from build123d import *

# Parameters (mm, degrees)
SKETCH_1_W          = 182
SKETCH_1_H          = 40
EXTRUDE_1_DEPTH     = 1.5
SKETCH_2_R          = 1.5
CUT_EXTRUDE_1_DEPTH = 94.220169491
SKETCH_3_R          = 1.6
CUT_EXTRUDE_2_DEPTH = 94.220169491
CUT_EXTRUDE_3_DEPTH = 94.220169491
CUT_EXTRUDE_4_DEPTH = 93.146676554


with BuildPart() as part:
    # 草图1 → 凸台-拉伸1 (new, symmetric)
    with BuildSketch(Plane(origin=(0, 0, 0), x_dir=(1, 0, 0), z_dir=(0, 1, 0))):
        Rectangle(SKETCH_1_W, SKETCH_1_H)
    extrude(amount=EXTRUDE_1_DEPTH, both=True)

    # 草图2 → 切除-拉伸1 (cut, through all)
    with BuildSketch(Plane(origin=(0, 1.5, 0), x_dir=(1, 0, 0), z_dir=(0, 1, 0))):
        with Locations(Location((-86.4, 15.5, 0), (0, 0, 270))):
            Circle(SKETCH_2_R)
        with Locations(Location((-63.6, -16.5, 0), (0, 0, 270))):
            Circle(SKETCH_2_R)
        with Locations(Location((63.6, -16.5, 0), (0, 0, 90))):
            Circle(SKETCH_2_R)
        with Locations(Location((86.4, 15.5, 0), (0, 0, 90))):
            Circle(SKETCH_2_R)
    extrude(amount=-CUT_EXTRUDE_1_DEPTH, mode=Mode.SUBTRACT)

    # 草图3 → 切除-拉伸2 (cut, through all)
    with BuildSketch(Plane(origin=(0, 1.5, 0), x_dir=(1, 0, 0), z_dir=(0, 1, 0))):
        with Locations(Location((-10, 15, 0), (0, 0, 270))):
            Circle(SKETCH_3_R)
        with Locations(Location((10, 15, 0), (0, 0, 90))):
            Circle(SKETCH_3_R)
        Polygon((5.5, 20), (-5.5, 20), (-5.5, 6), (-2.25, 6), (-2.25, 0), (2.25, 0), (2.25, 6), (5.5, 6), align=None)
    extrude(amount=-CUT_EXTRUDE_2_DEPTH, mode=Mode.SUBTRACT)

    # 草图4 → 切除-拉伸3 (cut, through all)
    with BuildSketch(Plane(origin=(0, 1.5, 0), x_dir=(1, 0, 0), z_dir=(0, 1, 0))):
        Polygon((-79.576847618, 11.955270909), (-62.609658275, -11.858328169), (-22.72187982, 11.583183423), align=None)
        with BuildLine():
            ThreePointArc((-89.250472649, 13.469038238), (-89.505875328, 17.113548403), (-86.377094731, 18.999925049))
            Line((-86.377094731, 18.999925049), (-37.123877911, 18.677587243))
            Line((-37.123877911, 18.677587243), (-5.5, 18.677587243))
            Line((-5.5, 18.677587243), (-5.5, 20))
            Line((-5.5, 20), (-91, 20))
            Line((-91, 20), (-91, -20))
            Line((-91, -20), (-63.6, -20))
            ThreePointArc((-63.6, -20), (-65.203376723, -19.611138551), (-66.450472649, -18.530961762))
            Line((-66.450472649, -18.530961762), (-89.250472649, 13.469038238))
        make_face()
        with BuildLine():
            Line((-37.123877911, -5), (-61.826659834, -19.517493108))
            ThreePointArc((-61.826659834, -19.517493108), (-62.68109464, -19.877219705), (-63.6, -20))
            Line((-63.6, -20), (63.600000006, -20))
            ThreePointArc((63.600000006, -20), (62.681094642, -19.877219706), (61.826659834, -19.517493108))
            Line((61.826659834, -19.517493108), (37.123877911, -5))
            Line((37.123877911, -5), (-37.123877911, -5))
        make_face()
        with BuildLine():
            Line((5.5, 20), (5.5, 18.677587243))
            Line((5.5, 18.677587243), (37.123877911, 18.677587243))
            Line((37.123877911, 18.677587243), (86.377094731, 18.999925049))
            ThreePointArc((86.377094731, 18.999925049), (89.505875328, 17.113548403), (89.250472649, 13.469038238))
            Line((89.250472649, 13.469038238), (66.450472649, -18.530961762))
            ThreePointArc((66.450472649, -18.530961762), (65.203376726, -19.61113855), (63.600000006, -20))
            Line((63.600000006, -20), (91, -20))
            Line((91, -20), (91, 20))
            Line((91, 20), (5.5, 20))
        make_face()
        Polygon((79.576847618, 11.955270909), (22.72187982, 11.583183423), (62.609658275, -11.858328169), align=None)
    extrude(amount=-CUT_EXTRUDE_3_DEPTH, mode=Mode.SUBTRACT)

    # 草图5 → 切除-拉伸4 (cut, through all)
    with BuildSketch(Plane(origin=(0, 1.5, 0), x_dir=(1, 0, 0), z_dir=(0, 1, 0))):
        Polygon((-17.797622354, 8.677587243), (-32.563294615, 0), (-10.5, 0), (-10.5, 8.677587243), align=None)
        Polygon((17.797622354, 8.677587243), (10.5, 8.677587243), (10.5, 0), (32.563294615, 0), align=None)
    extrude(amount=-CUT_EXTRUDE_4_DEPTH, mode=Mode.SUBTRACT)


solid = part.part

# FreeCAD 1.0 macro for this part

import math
import FreeCAD as App
import Part
import Sketcher

doc = App.newDocument("Part")
body = doc.addObject("PartDesign::Body", "Body")

sketch1 = doc.addObject("Sketcher::SketchObject", "Sketch")
body.addObject(sketch1)
sketch1.AttachmentSupport = (doc.XZ_Plane, [""])
sketch1.MapMode = "FlatFace"
sketch1.addGeometry([
    Part.LineSegment(App.Vector(-91, -20, 0), App.Vector(-91, 20, 0)),
    Part.LineSegment(App.Vector(-91, 20, 0), App.Vector(91, 20, 0)),
    Part.LineSegment(App.Vector(91, 20, 0), App.Vector(91, -20, 0)),
    Part.LineSegment(App.Vector(91, -20, 0), App.Vector(-91, -20, 0)),
], False)
sketch1.addConstraint([
    Sketcher.Constraint("Coincident", 0, 2, 1, 1),
    Sketcher.Constraint("Coincident", 1, 2, 2, 1),
    Sketcher.Constraint("Coincident", 2, 2, 3, 1),
    Sketcher.Constraint("Coincident", 3, 2, 0, 1),
    Sketcher.Constraint("Vertical", 0),
    Sketcher.Constraint("Horizontal", 1),
    Sketcher.Constraint("Vertical", 2),
    Sketcher.Constraint("Horizontal", 3),
    Sketcher.Constraint("Symmetric", 0, 2, 2, 2, -1, 1),
    Sketcher.Constraint("DistanceX", 1, 1, 1, 2, 182.0),
    Sketcher.Constraint("DistanceY", 0, 1, 0, 2, 40.0),
])
pad1 = doc.addObject("PartDesign::Pad", "Pad")
body.addObject(pad1)
pad1.Profile = sketch1
pad1.Length = 3
pad1.Midplane = True

sketch2 = doc.addObject("Sketcher::SketchObject", "Sketch001")
body.addObject(sketch2)
sketch2.AttachmentSupport = (doc.XZ_Plane, [""])
sketch2.MapMode = "FlatFace"
sketch2.AttachmentOffset = App.Placement(App.Vector(0, 0, -1.5), App.Rotation())
sketch2.addGeometry([
    Part.Circle(App.Vector(-86.4, -15.5, 0), App.Vector(0, 0, 1), 1.5),
    Part.Circle(App.Vector(-63.6, 16.5, 0), App.Vector(0, 0, 1), 1.5),
    Part.Circle(App.Vector(63.6, 16.5, 0), App.Vector(0, 0, 1), 1.5),
    Part.Circle(App.Vector(86.4, -15.5, 0), App.Vector(0, 0, 1), 1.5),
], False)
sketch2.addConstraint([
    Sketcher.Constraint("Equal", 0, 1),
    Sketcher.Constraint("Equal", 1, 2),
    Sketcher.Constraint("Equal", 2, 3),
    Sketcher.Constraint("Symmetric", 1, 3, 2, 3, -2),
    Sketcher.Constraint("Symmetric", 0, 3, 3, 3, -2),
    Sketcher.Constraint("Diameter", 0, 3.0),
    Sketcher.Constraint("DistanceY", 0, 3, 1, 3, 32.0),
    Sketcher.Constraint("DistanceX", 0, 3, 2, 3, 150.0),
    Sketcher.Constraint("DistanceX", 0, 3, -1, 1, 86.4),
    Sketcher.Constraint("DistanceY", 0, 3, -1, 1, 15.5),
])
pocket1 = doc.addObject("PartDesign::Pocket", "Pocket")
body.addObject(pocket1)
pocket1.Profile = sketch2
pocket1.Type = "ThroughAll"
pocket1.Reversed = True

sketch3 = doc.addObject("Sketcher::SketchObject", "Sketch002")
body.addObject(sketch3)
sketch3.AttachmentSupport = (doc.XZ_Plane, [""])
sketch3.MapMode = "FlatFace"
sketch3.AttachmentOffset = App.Placement(App.Vector(0, 0, -1.5), App.Rotation())
sketch3.addGeometry([
    Part.Circle(App.Vector(-10, -15, 0), App.Vector(0, 0, 1), 1.6),
    Part.Circle(App.Vector(10, -15, 0), App.Vector(0, 0, 1), 1.6),
    Part.LineSegment(App.Vector(5.5, -20, 0), App.Vector(-5.5, -20, 0)),
    Part.LineSegment(App.Vector(-5.5, -20, 0), App.Vector(-5.5, -6, 0)),
    Part.LineSegment(App.Vector(-5.5, -6, 0), App.Vector(-2.2, -6, 0)),
    Part.LineSegment(App.Vector(-2.2, -6, 0), App.Vector(-2.2, 0, 0)),
    Part.LineSegment(App.Vector(-2.2, 0, 0), App.Vector(2.2, 0, 0)),
    Part.LineSegment(App.Vector(2.2, 0, 0), App.Vector(2.2, -6, 0)),
    Part.LineSegment(App.Vector(2.2, -6, 0), App.Vector(5.5, -6, 0)),
    Part.LineSegment(App.Vector(5.5, -6, 0), App.Vector(5.5, -20, 0)),
], False)
sketch3.addConstraint([
    Sketcher.Constraint("Coincident", 2, 2, 3, 1),
    Sketcher.Constraint("Coincident", 3, 2, 4, 1),
    Sketcher.Constraint("Coincident", 4, 2, 5, 1),
    Sketcher.Constraint("Coincident", 5, 2, 6, 1),
    Sketcher.Constraint("Coincident", 6, 2, 7, 1),
    Sketcher.Constraint("Coincident", 7, 2, 8, 1),
    Sketcher.Constraint("Coincident", 8, 2, 9, 1),
    Sketcher.Constraint("Coincident", 9, 2, 2, 1),
    Sketcher.Constraint("Horizontal", 2),
    Sketcher.Constraint("Vertical", 3),
    Sketcher.Constraint("Horizontal", 4),
    Sketcher.Constraint("Vertical", 5),
    Sketcher.Constraint("Horizontal", 6),
    Sketcher.Constraint("Vertical", 7),
    Sketcher.Constraint("Horizontal", 8),
    Sketcher.Constraint("Vertical", 9),
    Sketcher.Constraint("Equal", 0, 1),
    Sketcher.Constraint("Symmetric", 5, 2, 6, 2, -1, 1),
    Sketcher.Constraint("Symmetric", 0, 3, 1, 3, -2),
    Sketcher.Constraint("Symmetric", 3, 2, 8, 2, -2),
    Sketcher.Constraint("Diameter", 0, 3.2),
    Sketcher.Constraint("DistanceX", 2, 2, 2, 1, 11.0),
    Sketcher.Constraint("DistanceY", 3, 1, 3, 2, 14.0),
    Sketcher.Constraint("DistanceY", 5, 1, 5, 2, 6.0),
    Sketcher.Constraint("DistanceX", 6, 1, 6, 2, 4.5),
    Sketcher.Constraint("DistanceX", 0, 3, -1, 1, 10.0),
    Sketcher.Constraint("DistanceY", 0, 3, -1, 1, 15.0),
])
pocket2 = doc.addObject("PartDesign::Pocket", "Pocket001")
body.addObject(pocket2)
pocket2.Profile = sketch3
pocket2.Type = "ThroughAll"
pocket2.Reversed = True

sketch4 = doc.addObject("Sketcher::SketchObject", "Sketch003")
body.addObject(sketch4)
sketch4.AttachmentSupport = (doc.XZ_Plane, [""])
sketch4.MapMode = "FlatFace"
sketch4.AttachmentOffset = App.Placement(App.Vector(0, 0, -1.5), App.Rotation())
sketch4.addGeometry([
    Part.LineSegment(App.Vector(-79.6, -12, 0), App.Vector(-62.6, 11.9, 0)),
    Part.LineSegment(App.Vector(-62.6, 11.9, 0), App.Vector(-22.7, -11.6, 0)),
    Part.LineSegment(App.Vector(-22.7, -11.6, 0), App.Vector(-79.6, -12, 0)),
    Part.ArcOfCircle(Part.Circle(App.Vector(-86.4, -15.5, 0), App.Vector(0, 0, 1), 3.5), math.radians(145), math.radians(270)),
    Part.LineSegment(App.Vector(-86.4, -19, 0), App.Vector(-37.1, -18.7, 0)),
    Part.LineSegment(App.Vector(-37.1, -18.7, 0), App.Vector(-5.5, -18.7, 0)),
    Part.LineSegment(App.Vector(-5.5, -18.7, 0), App.Vector(-5.5, -20, 0)),
    Part.LineSegment(App.Vector(-5.5, -20, 0), App.Vector(-91, -20, 0)),
    Part.LineSegment(App.Vector(-91, -20, 0), App.Vector(-91, 20, 0)),
    Part.LineSegment(App.Vector(-91, 20, 0), App.Vector(-63.6, 20, 0)),
    Part.ArcOfCircle(Part.Circle(App.Vector(-63.6, 16.5, 0), App.Vector(0, 0, 1), 3.5), math.radians(90), math.radians(145)),
    Part.LineSegment(App.Vector(-66.5, 18.5, 0), App.Vector(-89.3, -13.5, 0)),
    Part.LineSegment(App.Vector(-37.1, 5, 0), App.Vector(-61.8, 19.5, 0)),
    Part.ArcOfCircle(Part.Circle(App.Vector(-63.6, 16.5, 0), App.Vector(0, 0, 1), 3.5), math.radians(60), math.radians(90)),
    Part.LineSegment(App.Vector(-63.6, 20, 0), App.Vector(63.6, 20, 0)),
    Part.ArcOfCircle(Part.Circle(App.Vector(63.6, 16.5, 0), App.Vector(0, 0, 1), 3.5), math.radians(90), math.radians(120)),
    Part.LineSegment(App.Vector(61.8, 19.5, 0), App.Vector(37.1, 5, 0)),
    Part.LineSegment(App.Vector(37.1, 5, 0), App.Vector(-37.1, 5, 0)),
    Part.LineSegment(App.Vector(5.5, -20, 0), App.Vector(5.5, -18.7, 0)),
    Part.LineSegment(App.Vector(5.5, -18.7, 0), App.Vector(37.1, -18.7, 0)),
    Part.LineSegment(App.Vector(37.1, -18.7, 0), App.Vector(86.4, -19, 0)),
    Part.ArcOfCircle(Part.Circle(App.Vector(86.4, -15.5, 0), App.Vector(0, 0, 1), 3.5), math.radians(-90), math.radians(35)),
    Part.LineSegment(App.Vector(89.3, -13.5, 0), App.Vector(66.5, 18.5, 0)),
    Part.ArcOfCircle(Part.Circle(App.Vector(63.6, 16.5, 0), App.Vector(0, 0, 1), 3.5), math.radians(35), math.radians(90)),
    Part.LineSegment(App.Vector(63.6, 20, 0), App.Vector(91, 20, 0)),
    Part.LineSegment(App.Vector(91, 20, 0), App.Vector(91, -20, 0)),
    Part.LineSegment(App.Vector(91, -20, 0), App.Vector(5.5, -20, 0)),
    Part.LineSegment(App.Vector(79.6, -12, 0), App.Vector(22.7, -11.6, 0)),
    Part.LineSegment(App.Vector(22.7, -11.6, 0), App.Vector(62.6, 11.9, 0)),
    Part.LineSegment(App.Vector(62.6, 11.9, 0), App.Vector(79.6, -12, 0)),
], False)
sketch4.addConstraint([
    Sketcher.Constraint("Coincident", 0, 2, 1, 1),
    Sketcher.Constraint("Coincident", 1, 2, 2, 1),
    Sketcher.Constraint("Coincident", 2, 2, 0, 1),
    Sketcher.Constraint("Tangent", 3, 2, 4, 1),
    Sketcher.Constraint("Coincident", 4, 2, 5, 1),
    Sketcher.Constraint("Coincident", 5, 2, 6, 1),
    Sketcher.Constraint("Coincident", 6, 2, 7, 1),
    Sketcher.Constraint("Coincident", 7, 2, 8, 1),
    Sketcher.Constraint("Coincident", 8, 2, 9, 1),
    Sketcher.Constraint("Tangent", 9, 2, 10, 1),
    Sketcher.Constraint("Tangent", 10, 2, 11, 1),
    Sketcher.Constraint("Tangent", 11, 2, 3, 1),
    Sketcher.Constraint("Tangent", 12, 2, 13, 1),
    Sketcher.Constraint("Tangent", 13, 2, 14, 1),
    Sketcher.Constraint("Tangent", 14, 2, 15, 1),
    Sketcher.Constraint("Tangent", 15, 2, 16, 1),
    Sketcher.Constraint("Coincident", 16, 2, 17, 1),
    Sketcher.Constraint("Coincident", 17, 2, 12, 1),
    Sketcher.Constraint("Coincident", 18, 2, 19, 1),
    Sketcher.Constraint("Coincident", 19, 2, 20, 1),
    Sketcher.Constraint("Tangent", 20, 2, 21, 1),
    Sketcher.Constraint("Tangent", 21, 2, 22, 1),
    Sketcher.Constraint("Tangent", 22, 2, 23, 1),
    Sketcher.Constraint("Tangent", 23, 2, 24, 1),
    Sketcher.Constraint("Coincident", 24, 2, 25, 1),
    Sketcher.Constraint("Coincident", 25, 2, 26, 1),
    Sketcher.Constraint("Coincident", 26, 2, 18, 1),
    Sketcher.Constraint("Coincident", 27, 2, 28, 1),
    Sketcher.Constraint("Coincident", 28, 2, 29, 1),
    Sketcher.Constraint("Coincident", 29, 2, 27, 1),
    Sketcher.Constraint("Horizontal", 5),
    Sketcher.Constraint("Vertical", 6),
    Sketcher.Constraint("Horizontal", 7),
    Sketcher.Constraint("Vertical", 8),
    Sketcher.Constraint("Horizontal", 9),
    Sketcher.Constraint("Horizontal", 14),
    Sketcher.Constraint("Horizontal", 17),
    Sketcher.Constraint("Vertical", 18),
    Sketcher.Constraint("Horizontal", 19),
    Sketcher.Constraint("Horizontal", 24),
    Sketcher.Constraint("Vertical", 25),
    Sketcher.Constraint("Horizontal", 26),
    Sketcher.Constraint("Coincident", 13, 3, 10, 3),
    Sketcher.Constraint("Coincident", 23, 3, 15, 3),
    Sketcher.Constraint("Equal", 3, 10),
    Sketcher.Constraint("Equal", 10, 13),
    Sketcher.Constraint("Equal", 13, 15),
    Sketcher.Constraint("Equal", 15, 21),
    Sketcher.Constraint("Equal", 21, 23),
    Sketcher.Constraint("Symmetric", 7, 2, 24, 2, -1, 1),
    Sketcher.Constraint("Symmetric", 3, 3, 21, 3, -2),
    Sketcher.Constraint("Symmetric", 12, 2, 15, 2, -2),
    Sketcher.Constraint("Symmetric", 5, 2, 18, 2, -2),
    Sketcher.Constraint("Symmetric", 1, 2, 27, 2, -2),
    Sketcher.Constraint("Symmetric", 0, 2, 28, 2, -2),
    Sketcher.Constraint("Symmetric", 2, 2, 29, 2, -2),
    Sketcher.Constraint("Parallel", 2, 4),
    Sketcher.Constraint("Parallel", 0, 11),
    Sketcher.Constraint("Parallel", 1, 12),
    Sketcher.Constraint("Parallel", 20, 27),
    Sketcher.Constraint("Horizontal", 7, 2, 25, 2),
    Sketcher.Constraint("Vertical", 4, 2, 17, 2),
    Sketcher.Constraint("Radius", 3, 3.5),
    Sketcher.Constraint("DistanceY", 8, 1, 8, 2, 40.0),
    Sketcher.Constraint("DistanceX", 7, 2, 7, 1, 85.5),
    Sketcher.Constraint("DistanceX", 9, 1, 9, 2, 27.4),
    Sketcher.Constraint("DistanceX", 14, 1, 14, 2, 127.2),
    Sketcher.Constraint("DistanceY", -1, 1, 16, 2, 5.0),
    Sketcher.Constraint("DistanceY", 3, 3, 10, 3, 32.0),
    Sketcher.Constraint("DistanceX", 3, 3, 15, 3, 150.0),
    Sketcher.Constraint("DistanceX", 4, 2, 1, 2, 14.401998),
    Sketcher.Constraint("DistanceX", 0, 2, 12, 2, 0.782998),
    Sketcher.Constraint("DistanceY", 2, 2, 0, 2, 23.813599),
    Sketcher.Constraint("Distance", 4, 49.254272),
    Sketcher.Constraint("DistanceY", -1, 1, 0, 2, 11.858328),
])
pocket3 = doc.addObject("PartDesign::Pocket", "Pocket002")
body.addObject(pocket3)
pocket3.Profile = sketch4
pocket3.Type = "ThroughAll"
pocket3.Reversed = True

sketch5 = doc.addObject("Sketcher::SketchObject", "Sketch004")
body.addObject(sketch5)
sketch5.AttachmentSupport = (doc.XZ_Plane, [""])
sketch5.MapMode = "FlatFace"
sketch5.AttachmentOffset = App.Placement(App.Vector(0, 0, -1.5), App.Rotation())
sketch5.addGeometry([
    Part.LineSegment(App.Vector(-18, -9, 0), App.Vector(-33, 0, 0)),
    Part.LineSegment(App.Vector(-33, 0, 0), App.Vector(-10, 0, 0)),
    Part.LineSegment(App.Vector(-10, 0, 0), App.Vector(-10, -9, 0)),
    Part.LineSegment(App.Vector(-10, -9, 0), App.Vector(-18, -9, 0)),
    Part.LineSegment(App.Vector(18, -9, 0), App.Vector(10, -9, 0)),
    Part.LineSegment(App.Vector(10, -9, 0), App.Vector(10, 0, 0)),
    Part.LineSegment(App.Vector(10, 0, 0), App.Vector(33, 0, 0)),
    Part.LineSegment(App.Vector(33, 0, 0), App.Vector(18, -9, 0)),
], False)
sketch5.addConstraint([
    Sketcher.Constraint("Coincident", 0, 2, 1, 1),
    Sketcher.Constraint("Coincident", 1, 2, 2, 1),
    Sketcher.Constraint("Coincident", 2, 2, 3, 1),
    Sketcher.Constraint("Coincident", 3, 2, 0, 1),
    Sketcher.Constraint("Coincident", 4, 2, 5, 1),
    Sketcher.Constraint("Coincident", 5, 2, 6, 1),
    Sketcher.Constraint("Coincident", 6, 2, 7, 1),
    Sketcher.Constraint("Coincident", 7, 2, 4, 1),
    Sketcher.Constraint("Horizontal", 1),
    Sketcher.Constraint("Vertical", 2),
    Sketcher.Constraint("Horizontal", 3),
    Sketcher.Constraint("Horizontal", 4),
    Sketcher.Constraint("Vertical", 5),
    Sketcher.Constraint("Horizontal", 6),
    Sketcher.Constraint("Symmetric", 1, 2, 5, 2, -1, 1),
    Sketcher.Constraint("Symmetric", 0, 2, 6, 2, -2),
    Sketcher.Constraint("Symmetric", 3, 2, 7, 2, -2),
    Sketcher.Constraint("DistanceX", 2, 2, 4, 2, 21.0),
    Sketcher.Constraint("Distance", 0, 17.126751),
    Sketcher.Constraint("DistanceX", 1, 1, 1, 2, 22.063295),
    Sketcher.Constraint("DistanceX", 3, 2, 3, 1, 7.297622),
])
pocket4 = doc.addObject("PartDesign::Pocket", "Pocket003")
body.addObject(pocket4)
pocket4.Profile = sketch5
pocket4.Type = "ThroughAll"
pocket4.Reversed = True

doc.recompute()
